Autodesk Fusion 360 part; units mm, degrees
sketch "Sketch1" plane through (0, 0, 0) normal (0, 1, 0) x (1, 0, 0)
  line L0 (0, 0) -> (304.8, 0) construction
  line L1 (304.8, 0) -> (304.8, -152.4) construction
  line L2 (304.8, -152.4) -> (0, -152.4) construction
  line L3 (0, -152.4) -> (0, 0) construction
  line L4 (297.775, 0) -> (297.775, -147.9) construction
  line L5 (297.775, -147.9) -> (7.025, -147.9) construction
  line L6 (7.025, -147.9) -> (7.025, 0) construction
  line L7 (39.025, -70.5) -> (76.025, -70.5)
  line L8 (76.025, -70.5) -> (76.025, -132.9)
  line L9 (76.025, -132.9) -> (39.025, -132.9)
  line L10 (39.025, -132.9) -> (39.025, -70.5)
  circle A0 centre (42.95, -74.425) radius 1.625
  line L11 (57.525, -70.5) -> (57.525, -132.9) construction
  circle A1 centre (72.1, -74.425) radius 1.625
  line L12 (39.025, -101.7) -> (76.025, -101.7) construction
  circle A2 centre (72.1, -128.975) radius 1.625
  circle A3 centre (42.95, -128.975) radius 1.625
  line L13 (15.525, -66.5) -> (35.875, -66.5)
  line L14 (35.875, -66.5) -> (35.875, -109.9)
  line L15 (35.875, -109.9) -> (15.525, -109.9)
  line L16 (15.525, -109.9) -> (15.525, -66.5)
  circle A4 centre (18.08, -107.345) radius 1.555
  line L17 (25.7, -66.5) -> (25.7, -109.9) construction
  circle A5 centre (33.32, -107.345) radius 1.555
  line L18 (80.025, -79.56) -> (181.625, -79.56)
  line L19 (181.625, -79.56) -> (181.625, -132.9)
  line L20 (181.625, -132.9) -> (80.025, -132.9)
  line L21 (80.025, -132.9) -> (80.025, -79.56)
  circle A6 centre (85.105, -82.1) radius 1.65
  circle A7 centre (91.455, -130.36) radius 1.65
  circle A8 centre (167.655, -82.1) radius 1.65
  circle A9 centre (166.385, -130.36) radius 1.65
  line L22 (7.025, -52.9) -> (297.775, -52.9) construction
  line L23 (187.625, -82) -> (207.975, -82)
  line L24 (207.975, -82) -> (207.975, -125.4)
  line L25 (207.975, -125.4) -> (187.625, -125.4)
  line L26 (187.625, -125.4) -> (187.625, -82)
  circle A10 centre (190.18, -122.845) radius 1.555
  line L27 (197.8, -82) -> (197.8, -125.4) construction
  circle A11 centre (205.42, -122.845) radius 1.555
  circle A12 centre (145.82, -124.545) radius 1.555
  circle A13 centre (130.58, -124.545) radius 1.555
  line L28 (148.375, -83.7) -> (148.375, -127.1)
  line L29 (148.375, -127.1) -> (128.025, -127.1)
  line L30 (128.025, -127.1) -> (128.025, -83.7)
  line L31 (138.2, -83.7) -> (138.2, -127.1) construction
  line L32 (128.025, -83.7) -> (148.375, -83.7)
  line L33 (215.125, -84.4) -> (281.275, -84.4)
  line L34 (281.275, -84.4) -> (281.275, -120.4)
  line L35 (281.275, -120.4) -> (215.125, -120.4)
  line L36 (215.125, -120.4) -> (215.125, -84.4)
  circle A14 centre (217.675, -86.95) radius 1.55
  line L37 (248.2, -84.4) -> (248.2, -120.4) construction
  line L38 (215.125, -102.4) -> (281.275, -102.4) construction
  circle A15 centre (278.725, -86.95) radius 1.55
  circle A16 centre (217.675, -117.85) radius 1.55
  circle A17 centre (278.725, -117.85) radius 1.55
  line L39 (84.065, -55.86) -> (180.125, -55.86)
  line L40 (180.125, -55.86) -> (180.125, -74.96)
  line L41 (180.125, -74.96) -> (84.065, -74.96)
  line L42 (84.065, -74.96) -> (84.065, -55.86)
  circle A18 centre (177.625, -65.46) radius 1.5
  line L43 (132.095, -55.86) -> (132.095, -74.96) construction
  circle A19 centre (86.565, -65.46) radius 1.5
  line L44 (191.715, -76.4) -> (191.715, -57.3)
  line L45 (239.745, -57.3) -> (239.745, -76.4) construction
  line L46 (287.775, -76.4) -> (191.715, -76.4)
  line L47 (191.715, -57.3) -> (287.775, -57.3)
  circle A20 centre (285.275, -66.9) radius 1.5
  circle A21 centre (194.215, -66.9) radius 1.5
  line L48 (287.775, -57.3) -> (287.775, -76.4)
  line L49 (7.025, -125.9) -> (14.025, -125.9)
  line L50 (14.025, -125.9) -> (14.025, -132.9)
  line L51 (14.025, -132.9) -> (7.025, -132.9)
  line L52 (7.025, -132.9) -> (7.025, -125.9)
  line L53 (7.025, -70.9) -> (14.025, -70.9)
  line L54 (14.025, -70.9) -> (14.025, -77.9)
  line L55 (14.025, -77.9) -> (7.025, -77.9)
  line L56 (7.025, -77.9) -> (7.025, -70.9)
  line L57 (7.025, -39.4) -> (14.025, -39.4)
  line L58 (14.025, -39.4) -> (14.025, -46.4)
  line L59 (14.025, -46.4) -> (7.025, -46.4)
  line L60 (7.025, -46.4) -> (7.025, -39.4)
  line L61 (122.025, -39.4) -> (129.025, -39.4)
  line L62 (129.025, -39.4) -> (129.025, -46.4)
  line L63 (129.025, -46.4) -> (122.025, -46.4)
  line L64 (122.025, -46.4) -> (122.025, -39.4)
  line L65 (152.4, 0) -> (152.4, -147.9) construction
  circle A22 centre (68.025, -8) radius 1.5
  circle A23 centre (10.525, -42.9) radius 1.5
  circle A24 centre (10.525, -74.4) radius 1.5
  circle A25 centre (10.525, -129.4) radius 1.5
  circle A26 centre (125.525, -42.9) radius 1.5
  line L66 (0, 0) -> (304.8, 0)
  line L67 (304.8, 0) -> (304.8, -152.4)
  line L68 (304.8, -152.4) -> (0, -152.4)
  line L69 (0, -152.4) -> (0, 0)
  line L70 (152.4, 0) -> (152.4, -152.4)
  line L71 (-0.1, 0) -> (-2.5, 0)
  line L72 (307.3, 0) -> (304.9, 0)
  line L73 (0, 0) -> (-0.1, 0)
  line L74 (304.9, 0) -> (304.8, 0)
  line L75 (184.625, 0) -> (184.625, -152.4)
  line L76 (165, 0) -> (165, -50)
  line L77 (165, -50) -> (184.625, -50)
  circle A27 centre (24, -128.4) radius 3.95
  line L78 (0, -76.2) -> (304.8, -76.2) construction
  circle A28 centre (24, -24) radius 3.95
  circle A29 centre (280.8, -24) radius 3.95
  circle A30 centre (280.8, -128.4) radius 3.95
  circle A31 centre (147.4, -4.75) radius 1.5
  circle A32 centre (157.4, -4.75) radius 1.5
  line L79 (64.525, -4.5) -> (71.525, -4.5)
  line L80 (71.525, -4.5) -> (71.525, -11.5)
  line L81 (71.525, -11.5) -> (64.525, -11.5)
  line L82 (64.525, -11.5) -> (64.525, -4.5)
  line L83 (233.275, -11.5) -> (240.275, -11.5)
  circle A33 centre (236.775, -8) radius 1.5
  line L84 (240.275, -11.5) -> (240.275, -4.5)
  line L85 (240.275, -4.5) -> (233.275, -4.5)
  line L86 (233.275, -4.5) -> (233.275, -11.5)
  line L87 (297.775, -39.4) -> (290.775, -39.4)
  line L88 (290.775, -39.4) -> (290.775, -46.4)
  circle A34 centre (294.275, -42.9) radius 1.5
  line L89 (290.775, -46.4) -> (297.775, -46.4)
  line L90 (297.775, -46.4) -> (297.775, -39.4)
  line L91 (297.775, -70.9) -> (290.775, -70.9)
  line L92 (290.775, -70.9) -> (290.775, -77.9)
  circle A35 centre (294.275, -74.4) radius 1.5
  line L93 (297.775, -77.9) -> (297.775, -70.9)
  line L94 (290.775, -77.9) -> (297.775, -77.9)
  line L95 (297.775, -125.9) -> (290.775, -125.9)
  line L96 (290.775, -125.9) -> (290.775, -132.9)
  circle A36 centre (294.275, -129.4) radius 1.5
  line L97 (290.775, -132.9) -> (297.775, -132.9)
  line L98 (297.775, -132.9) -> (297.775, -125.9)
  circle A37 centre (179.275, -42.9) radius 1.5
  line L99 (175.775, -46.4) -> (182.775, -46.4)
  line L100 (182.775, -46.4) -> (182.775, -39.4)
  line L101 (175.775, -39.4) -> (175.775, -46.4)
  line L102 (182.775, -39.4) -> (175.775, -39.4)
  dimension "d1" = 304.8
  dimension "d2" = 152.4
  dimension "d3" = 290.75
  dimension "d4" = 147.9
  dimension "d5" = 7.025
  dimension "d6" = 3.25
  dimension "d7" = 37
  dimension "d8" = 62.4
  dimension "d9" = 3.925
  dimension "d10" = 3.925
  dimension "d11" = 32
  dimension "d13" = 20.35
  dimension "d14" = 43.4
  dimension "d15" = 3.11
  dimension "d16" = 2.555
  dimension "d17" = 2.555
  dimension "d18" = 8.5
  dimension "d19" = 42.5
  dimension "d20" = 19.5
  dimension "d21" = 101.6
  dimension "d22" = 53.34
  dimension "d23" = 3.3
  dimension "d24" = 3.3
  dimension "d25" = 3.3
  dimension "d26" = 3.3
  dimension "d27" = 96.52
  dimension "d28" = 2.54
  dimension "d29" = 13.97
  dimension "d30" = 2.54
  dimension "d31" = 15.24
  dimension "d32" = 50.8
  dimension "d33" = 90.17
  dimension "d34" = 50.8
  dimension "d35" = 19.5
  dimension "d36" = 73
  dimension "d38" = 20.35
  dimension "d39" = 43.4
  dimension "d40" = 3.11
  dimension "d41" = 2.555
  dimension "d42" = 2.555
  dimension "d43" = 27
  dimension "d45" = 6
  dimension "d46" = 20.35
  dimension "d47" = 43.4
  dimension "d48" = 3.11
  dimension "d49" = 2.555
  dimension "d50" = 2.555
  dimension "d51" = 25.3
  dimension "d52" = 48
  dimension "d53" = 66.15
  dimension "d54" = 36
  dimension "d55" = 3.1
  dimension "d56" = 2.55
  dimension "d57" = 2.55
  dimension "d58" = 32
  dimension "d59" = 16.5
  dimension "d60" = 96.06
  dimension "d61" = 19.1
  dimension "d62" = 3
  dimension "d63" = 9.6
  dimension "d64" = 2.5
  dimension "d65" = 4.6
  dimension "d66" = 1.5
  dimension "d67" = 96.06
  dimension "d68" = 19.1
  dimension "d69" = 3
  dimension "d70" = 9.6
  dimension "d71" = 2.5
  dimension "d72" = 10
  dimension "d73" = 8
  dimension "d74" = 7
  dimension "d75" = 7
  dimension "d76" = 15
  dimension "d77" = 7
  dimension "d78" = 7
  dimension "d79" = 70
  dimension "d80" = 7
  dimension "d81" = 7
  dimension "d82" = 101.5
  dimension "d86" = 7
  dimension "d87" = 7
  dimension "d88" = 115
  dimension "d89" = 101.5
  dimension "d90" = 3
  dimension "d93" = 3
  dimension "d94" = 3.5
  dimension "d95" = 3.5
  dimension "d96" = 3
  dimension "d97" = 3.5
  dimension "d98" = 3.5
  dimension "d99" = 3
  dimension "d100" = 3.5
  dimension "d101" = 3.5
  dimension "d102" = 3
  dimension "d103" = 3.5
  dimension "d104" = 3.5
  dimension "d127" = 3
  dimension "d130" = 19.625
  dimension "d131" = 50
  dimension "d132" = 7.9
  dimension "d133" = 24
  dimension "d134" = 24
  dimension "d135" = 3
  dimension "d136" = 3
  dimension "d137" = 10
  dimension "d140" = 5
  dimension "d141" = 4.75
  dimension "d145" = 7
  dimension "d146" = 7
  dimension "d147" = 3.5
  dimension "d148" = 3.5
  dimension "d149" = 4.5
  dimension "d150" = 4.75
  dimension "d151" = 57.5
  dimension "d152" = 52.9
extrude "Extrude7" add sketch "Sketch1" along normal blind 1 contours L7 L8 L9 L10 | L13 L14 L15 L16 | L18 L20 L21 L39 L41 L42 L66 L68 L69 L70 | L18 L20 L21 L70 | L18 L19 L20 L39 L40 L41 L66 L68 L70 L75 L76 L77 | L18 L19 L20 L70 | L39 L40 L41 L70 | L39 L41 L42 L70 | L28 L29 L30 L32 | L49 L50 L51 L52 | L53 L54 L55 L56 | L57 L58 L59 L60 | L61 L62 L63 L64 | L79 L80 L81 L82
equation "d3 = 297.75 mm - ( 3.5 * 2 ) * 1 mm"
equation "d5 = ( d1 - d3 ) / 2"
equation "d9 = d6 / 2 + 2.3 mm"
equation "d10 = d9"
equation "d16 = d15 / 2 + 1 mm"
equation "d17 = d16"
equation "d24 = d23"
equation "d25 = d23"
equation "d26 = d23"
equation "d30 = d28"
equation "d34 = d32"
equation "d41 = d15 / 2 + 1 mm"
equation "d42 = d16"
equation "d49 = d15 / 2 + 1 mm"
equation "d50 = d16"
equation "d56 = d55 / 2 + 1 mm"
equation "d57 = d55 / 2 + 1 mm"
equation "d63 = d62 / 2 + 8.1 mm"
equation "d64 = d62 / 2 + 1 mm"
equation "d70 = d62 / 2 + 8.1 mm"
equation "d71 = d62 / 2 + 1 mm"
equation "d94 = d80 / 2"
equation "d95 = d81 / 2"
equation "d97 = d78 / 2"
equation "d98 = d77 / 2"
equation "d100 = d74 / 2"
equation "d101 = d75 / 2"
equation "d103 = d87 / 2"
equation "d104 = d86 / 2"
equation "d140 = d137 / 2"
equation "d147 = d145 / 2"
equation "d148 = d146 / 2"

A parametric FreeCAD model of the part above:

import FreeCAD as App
import Part
import Sketcher


def add_polygon(sketch, points):
    """Adds a closed chain of lines whose ends are joined by coincident constraints."""
    first, n = sketch.GeometryCount, len(points)
    for a, b in zip(points, points[1:] + points[:1]):
        sketch.addGeometry(Part.LineSegment(App.Vector(*a, 0), App.Vector(*b, 0)), False)
    for i in range(n):
        sketch.addConstraint(Sketcher.Constraint("Coincident", first + i, 2, first + (i + 1) % n, 1))

doc = App.newDocument("Part")
body = doc.addObject("PartDesign::Body", "Body")

sketch1 = body.newObject("Sketcher::SketchObject", "Sketch")
sketch1.AttachmentSupport = (doc.getObject("XZ_Plane"), [""])
sketch1.MapMode = "FlatFace"
add_polygon(sketch1, [(0, 152.4), (184.6, 152.4), (184.6, 50), (165, 50), (165, 0), (0, 0)])
sketch1.addGeometry(Part.Circle(App.Vector(43, 129, 0), App.Vector(0, 0, 1), 1.6), False)
sketch1.addGeometry(Part.Circle(App.Vector(72.1, 129, 0), App.Vector(0, 0, 1), 1.6), False)
sketch1.addGeometry(Part.Circle(App.Vector(43, 74.4, 0), App.Vector(0, 0, 1), 1.6), False)
sketch1.addGeometry(Part.Circle(App.Vector(72.1, 74.4, 0), App.Vector(0, 0, 1), 1.6), False)
sketch1.addGeometry(Part.Circle(App.Vector(24, 128.4, 0), App.Vector(0, 0, 1), 4), False)
sketch1.addGeometry(Part.Circle(App.Vector(147.4, 4.8, 0), App.Vector(0, 0, 1), 1.5), False)
sketch1.addGeometry(Part.Circle(App.Vector(24, 24, 0), App.Vector(0, 0, 1), 4), False)
sketch1.addGeometry(Part.Circle(App.Vector(85.1, 82.1, 0), App.Vector(0, 0, 1), 1.6), False)
sketch1.addGeometry(Part.Circle(App.Vector(91.5, 130.4, 0), App.Vector(0, 0, 1), 1.6), False)
sketch1.addGeometry(Part.Circle(App.Vector(157.4, 4.8, 0), App.Vector(0, 0, 1), 1.5), False)
sketch1.addGeometry(Part.Circle(App.Vector(86.6, 65.5, 0), App.Vector(0, 0, 1), 1.5), False)
sketch1.addGeometry(Part.Circle(App.Vector(10.5, 129.4, 0), App.Vector(0, 0, 1), 1.5), False)
sketch1.addGeometry(Part.Circle(App.Vector(68, 8, 0), App.Vector(0, 0, 1), 1.5), False)
sketch1.addGeometry(Part.Circle(App.Vector(18.1, 107.3, 0), App.Vector(0, 0, 1), 1.6), False)
sketch1.addGeometry(Part.Circle(App.Vector(33.3, 107.3, 0), App.Vector(0, 0, 1), 1.6), False)
sketch1.addGeometry(Part.Circle(App.Vector(10.5, 74.4, 0), App.Vector(0, 0, 1), 1.5), False)
sketch1.addGeometry(Part.Circle(App.Vector(10.5, 42.9, 0), App.Vector(0, 0, 1), 1.5), False)
sketch1.addGeometry(Part.Circle(App.Vector(125.5, 42.9, 0), App.Vector(0, 0, 1), 1.5), False)
sketch1.addGeometry(Part.Circle(App.Vector(130.6, 124.5, 0), App.Vector(0, 0, 1), 1.6), False)
sketch1.addGeometry(Part.Circle(App.Vector(145.8, 124.5, 0), App.Vector(0, 0, 1), 1.6), False)
sketch1.addGeometry(Part.Circle(App.Vector(167.7, 82.1, 0), App.Vector(0, 0, 1), 1.6), False)
sketch1.addGeometry(Part.Circle(App.Vector(166.4, 130.4, 0), App.Vector(0, 0, 1), 1.6), False)
sketch1.addGeometry(Part.Circle(App.Vector(177.6, 65.5, 0), App.Vector(0, 0, 1), 1.5), False)
sketch1.addConstraint(Sketcher.Constraint("Horizontal", 0))
sketch1.addConstraint(Sketcher.Constraint("Vertical", 1))
sketch1.addConstraint(Sketcher.Constraint("Horizontal", 2))
sketch1.addConstraint(Sketcher.Constraint("Vertical", 3))
sketch1.addConstraint(Sketcher.Constraint("Horizontal", 4))
sketch1.addConstraint(Sketcher.Constraint("Vertical", 5))
sketch1.addConstraint(Sketcher.Constraint("Coincident", 4, 2, -1, 1))
sketch1.addConstraint(Sketcher.Constraint("Equal", 6, 7))
sketch1.addConstraint(Sketcher.Constraint("Equal", 7, 8))
sketch1.addConstraint(Sketcher.Constraint("Equal", 8, 9))
sketch1.addConstraint(Sketcher.Constraint("Equal", 10, 12))
sketch1.addConstraint(Sketcher.Constraint("Equal", 13, 14))
sketch1.addConstraint(Sketcher.Constraint("Equal", 11, 15))
sketch1.addConstraint(Sketcher.Constraint("Equal", 15, 16))
sketch1.addConstraint(Sketcher.Constraint("Equal", 16, 17))
sketch1.addConstraint(Sketcher.Constraint("Equal", 17, 18))
sketch1.addConstraint(Sketcher.Constraint("Equal", 19, 20))
sketch1.addConstraint(Sketcher.Constraint("Equal", 18, 21))
sketch1.addConstraint(Sketcher.Constraint("Equal", 21, 22))
sketch1.addConstraint(Sketcher.Constraint("Equal", 22, 23))
sketch1.addConstraint(Sketcher.Constraint("Equal", 20, 24))
sketch1.addConstraint(Sketcher.Constraint("Equal", 24, 25))
sketch1.addConstraint(Sketcher.Constraint("Equal", 14, 26))
sketch1.addConstraint(Sketcher.Constraint("Equal", 26, 27))
sketch1.addConstraint(Sketcher.Constraint("Equal", 23, 28))
sketch1.addConstraint(Sketcher.Constraint("Horizontal", 6, 3, 7, 3))
sketch1.addConstraint(Sketcher.Constraint("Horizontal", 8, 3, 9, 3))
sketch1.addConstraint(Sketcher.Constraint("Horizontal", 11, 3, 15, 3))
sketch1.addConstraint(Sketcher.Constraint("Horizontal", 19, 3, 20, 3))
sketch1.addConstraint(Sketcher.Constraint("Horizontal", 22, 3, 23, 3))
sketch1.addConstraint(Sketcher.Constraint("Horizontal", 24, 3, 25, 3))
sketch1.addConstraint(Sketcher.Constraint("Horizontal", 13, 3, 26, 3))
sketch1.addConstraint(Sketcher.Constraint("Horizontal", 14, 3, 27, 3))
sketch1.addConstraint(Sketcher.Constraint("Horizontal", 16, 3, 28, 3))
sketch1.addConstraint(Sketcher.Constraint("Vertical", 6, 3, 8, 3))
sketch1.addConstraint(Sketcher.Constraint("Vertical", 7, 3, 9, 3))
sketch1.addConstraint(Sketcher.Constraint("Vertical", 10, 3, 12, 3))
sketch1.addConstraint(Sketcher.Constraint("Vertical", 17, 3, 21, 3))
sketch1.addConstraint(Sketcher.Constraint("Vertical", 21, 3, 22, 3))
sketch1.addConstraint(Sketcher.Constraint("Diameter", 11, 3.0))
sketch1.addConstraint(Sketcher.Constraint("Diameter", 10, 7.9))
sketch1.addConstraint(Sketcher.Constraint("Diameter", 13, 3.3))
sketch1.addConstraint(Sketcher.Constraint("Diameter", 6, 3.25))
sketch1.addConstraint(Sketcher.Constraint("Diameter", 19, 3.11))
sketch1.addConstraint(Sketcher.Constraint("DistanceY", 3, 2, 3, 1, 50.0))
sketch1.addConstraint(Sketcher.Constraint("DistanceY", 5, 1, 5, 2, 152.4))
sketch1.addConstraint(Sketcher.Constraint("DistanceX", -1, 1, 10, 3, 24.0))
sketch1.addConstraint(Sketcher.Constraint("DistanceY", -1, 1, 12, 3, 24.0))
sketch1.addConstraint(Sketcher.Constraint("DistanceY", -1, 1, 18, 3, 8.0))
sketch1.addConstraint(Sketcher.Constraint("DistanceX", 11, 3, 15, 3, 10.0))
sketch1.addConstraint(Sketcher.Constraint("DistanceX", 28, 3, 0, 2, 7.0))
sketch1.addConstraint(Sketcher.Constraint("DistanceY", 10, 3, 5, 2, 24.0))
sketch1.addConstraint(Sketcher.Constraint("DistanceX", 22, 3, 18, 3, 57.5))
sketch1.addConstraint(Sketcher.Constraint("DistanceX", 2, 2, 2, 1, 19.625))
sketch1.addConstraint(Sketcher.Constraint("DistanceX", 4, 2, 4, 1, 165.0))
sketch1.addConstraint(Sketcher.Constraint("DistanceY", -1, 1, 11, 3, 4.75))
sketch1.addConstraint(Sketcher.Constraint("DistanceX", 19, 3, 20, 3, 15.24))
sketch1.addConstraint(Sketcher.Constraint("DistanceX", 24, 3, 25, 3, 15.24))
sketch1.addConstraint(Sketcher.Constraint("DistanceY", 10, 3, 17, 3, 1.0))
sketch1.addConstraint(Sketcher.Constraint("DistanceY", 21, 3, 17, 3, 55.0))
sketch1.addConstraint(Sketcher.Constraint("DistanceX", -1, 1, 7, 3, 72.1))
sketch1.addConstraint(Sketcher.Constraint("DistanceX", -1, 1, 11, 3, 147.4))
sketch1.addConstraint(Sketcher.Constraint("DistanceY", -1, 1, 13, 3, 82.1))
sketch1.addConstraint(Sketcher.Constraint("DistanceY", -1, 1, 22, 3, 42.9))
sketch1.addConstraint(Sketcher.Constraint("DistanceY", 16, 3, 14, 3, 64.9))
sketch1.addConstraint(Sketcher.Constraint("DistanceX", 23, 3, 28, 3, 52.1))
sketch1.addConstraint(Sketcher.Constraint("DistanceX", -1, 1, 6, 3, 42.95))
sketch1.addConstraint(Sketcher.Constraint("DistanceY", -1, 1, 14, 3, 130.36))
sketch1.addConstraint(Sketcher.Constraint("DistanceX", -1, 1, 19, 3, 18.08))
sketch1.addConstraint(Sketcher.Constraint("DistanceX", -1, 1, 24, 3, 130.58))
sketch1.addConstraint(Sketcher.Constraint("DistanceY", 8, 3, 6, 3, 54.55))
sketch1.addConstraint(Sketcher.Constraint("DistanceX", 13, 3, 14, 3, 6.35))
sketch1.addConstraint(Sketcher.Constraint("DistanceX", 13, 3, 16, 3, 1.46))
sketch1.addConstraint(Sketcher.Constraint("DistanceX", 17, 3, 14, 3, 80.93))
sketch1.addConstraint(Sketcher.Constraint("DistanceY", 19, 3, 6, 3, 21.63))
sketch1.addConstraint(Sketcher.Constraint("DistanceX", 16, 3, 23, 3, 38.96))
sketch1.addConstraint(Sketcher.Constraint("DistanceY", 24, 3, 7, 3, 4.43))
sketch1.addConstraint(Sketcher.Constraint("DistanceX", 23, 3, 26, 3, 42.13))
sketch1.addConstraint(Sketcher.Constraint("DistanceX", 27, 3, 26, 3, 1.27))
sketch1.addConstraint(Sketcher.Constraint("DistanceY", -1, 1, 6, 3, 128.975))
pad1 = body.newObject("PartDesign::Pad", "Pad")
pad1.Profile = sketch1
pad1.Length = 1
pad1.Reversed = True

doc.recompute()
